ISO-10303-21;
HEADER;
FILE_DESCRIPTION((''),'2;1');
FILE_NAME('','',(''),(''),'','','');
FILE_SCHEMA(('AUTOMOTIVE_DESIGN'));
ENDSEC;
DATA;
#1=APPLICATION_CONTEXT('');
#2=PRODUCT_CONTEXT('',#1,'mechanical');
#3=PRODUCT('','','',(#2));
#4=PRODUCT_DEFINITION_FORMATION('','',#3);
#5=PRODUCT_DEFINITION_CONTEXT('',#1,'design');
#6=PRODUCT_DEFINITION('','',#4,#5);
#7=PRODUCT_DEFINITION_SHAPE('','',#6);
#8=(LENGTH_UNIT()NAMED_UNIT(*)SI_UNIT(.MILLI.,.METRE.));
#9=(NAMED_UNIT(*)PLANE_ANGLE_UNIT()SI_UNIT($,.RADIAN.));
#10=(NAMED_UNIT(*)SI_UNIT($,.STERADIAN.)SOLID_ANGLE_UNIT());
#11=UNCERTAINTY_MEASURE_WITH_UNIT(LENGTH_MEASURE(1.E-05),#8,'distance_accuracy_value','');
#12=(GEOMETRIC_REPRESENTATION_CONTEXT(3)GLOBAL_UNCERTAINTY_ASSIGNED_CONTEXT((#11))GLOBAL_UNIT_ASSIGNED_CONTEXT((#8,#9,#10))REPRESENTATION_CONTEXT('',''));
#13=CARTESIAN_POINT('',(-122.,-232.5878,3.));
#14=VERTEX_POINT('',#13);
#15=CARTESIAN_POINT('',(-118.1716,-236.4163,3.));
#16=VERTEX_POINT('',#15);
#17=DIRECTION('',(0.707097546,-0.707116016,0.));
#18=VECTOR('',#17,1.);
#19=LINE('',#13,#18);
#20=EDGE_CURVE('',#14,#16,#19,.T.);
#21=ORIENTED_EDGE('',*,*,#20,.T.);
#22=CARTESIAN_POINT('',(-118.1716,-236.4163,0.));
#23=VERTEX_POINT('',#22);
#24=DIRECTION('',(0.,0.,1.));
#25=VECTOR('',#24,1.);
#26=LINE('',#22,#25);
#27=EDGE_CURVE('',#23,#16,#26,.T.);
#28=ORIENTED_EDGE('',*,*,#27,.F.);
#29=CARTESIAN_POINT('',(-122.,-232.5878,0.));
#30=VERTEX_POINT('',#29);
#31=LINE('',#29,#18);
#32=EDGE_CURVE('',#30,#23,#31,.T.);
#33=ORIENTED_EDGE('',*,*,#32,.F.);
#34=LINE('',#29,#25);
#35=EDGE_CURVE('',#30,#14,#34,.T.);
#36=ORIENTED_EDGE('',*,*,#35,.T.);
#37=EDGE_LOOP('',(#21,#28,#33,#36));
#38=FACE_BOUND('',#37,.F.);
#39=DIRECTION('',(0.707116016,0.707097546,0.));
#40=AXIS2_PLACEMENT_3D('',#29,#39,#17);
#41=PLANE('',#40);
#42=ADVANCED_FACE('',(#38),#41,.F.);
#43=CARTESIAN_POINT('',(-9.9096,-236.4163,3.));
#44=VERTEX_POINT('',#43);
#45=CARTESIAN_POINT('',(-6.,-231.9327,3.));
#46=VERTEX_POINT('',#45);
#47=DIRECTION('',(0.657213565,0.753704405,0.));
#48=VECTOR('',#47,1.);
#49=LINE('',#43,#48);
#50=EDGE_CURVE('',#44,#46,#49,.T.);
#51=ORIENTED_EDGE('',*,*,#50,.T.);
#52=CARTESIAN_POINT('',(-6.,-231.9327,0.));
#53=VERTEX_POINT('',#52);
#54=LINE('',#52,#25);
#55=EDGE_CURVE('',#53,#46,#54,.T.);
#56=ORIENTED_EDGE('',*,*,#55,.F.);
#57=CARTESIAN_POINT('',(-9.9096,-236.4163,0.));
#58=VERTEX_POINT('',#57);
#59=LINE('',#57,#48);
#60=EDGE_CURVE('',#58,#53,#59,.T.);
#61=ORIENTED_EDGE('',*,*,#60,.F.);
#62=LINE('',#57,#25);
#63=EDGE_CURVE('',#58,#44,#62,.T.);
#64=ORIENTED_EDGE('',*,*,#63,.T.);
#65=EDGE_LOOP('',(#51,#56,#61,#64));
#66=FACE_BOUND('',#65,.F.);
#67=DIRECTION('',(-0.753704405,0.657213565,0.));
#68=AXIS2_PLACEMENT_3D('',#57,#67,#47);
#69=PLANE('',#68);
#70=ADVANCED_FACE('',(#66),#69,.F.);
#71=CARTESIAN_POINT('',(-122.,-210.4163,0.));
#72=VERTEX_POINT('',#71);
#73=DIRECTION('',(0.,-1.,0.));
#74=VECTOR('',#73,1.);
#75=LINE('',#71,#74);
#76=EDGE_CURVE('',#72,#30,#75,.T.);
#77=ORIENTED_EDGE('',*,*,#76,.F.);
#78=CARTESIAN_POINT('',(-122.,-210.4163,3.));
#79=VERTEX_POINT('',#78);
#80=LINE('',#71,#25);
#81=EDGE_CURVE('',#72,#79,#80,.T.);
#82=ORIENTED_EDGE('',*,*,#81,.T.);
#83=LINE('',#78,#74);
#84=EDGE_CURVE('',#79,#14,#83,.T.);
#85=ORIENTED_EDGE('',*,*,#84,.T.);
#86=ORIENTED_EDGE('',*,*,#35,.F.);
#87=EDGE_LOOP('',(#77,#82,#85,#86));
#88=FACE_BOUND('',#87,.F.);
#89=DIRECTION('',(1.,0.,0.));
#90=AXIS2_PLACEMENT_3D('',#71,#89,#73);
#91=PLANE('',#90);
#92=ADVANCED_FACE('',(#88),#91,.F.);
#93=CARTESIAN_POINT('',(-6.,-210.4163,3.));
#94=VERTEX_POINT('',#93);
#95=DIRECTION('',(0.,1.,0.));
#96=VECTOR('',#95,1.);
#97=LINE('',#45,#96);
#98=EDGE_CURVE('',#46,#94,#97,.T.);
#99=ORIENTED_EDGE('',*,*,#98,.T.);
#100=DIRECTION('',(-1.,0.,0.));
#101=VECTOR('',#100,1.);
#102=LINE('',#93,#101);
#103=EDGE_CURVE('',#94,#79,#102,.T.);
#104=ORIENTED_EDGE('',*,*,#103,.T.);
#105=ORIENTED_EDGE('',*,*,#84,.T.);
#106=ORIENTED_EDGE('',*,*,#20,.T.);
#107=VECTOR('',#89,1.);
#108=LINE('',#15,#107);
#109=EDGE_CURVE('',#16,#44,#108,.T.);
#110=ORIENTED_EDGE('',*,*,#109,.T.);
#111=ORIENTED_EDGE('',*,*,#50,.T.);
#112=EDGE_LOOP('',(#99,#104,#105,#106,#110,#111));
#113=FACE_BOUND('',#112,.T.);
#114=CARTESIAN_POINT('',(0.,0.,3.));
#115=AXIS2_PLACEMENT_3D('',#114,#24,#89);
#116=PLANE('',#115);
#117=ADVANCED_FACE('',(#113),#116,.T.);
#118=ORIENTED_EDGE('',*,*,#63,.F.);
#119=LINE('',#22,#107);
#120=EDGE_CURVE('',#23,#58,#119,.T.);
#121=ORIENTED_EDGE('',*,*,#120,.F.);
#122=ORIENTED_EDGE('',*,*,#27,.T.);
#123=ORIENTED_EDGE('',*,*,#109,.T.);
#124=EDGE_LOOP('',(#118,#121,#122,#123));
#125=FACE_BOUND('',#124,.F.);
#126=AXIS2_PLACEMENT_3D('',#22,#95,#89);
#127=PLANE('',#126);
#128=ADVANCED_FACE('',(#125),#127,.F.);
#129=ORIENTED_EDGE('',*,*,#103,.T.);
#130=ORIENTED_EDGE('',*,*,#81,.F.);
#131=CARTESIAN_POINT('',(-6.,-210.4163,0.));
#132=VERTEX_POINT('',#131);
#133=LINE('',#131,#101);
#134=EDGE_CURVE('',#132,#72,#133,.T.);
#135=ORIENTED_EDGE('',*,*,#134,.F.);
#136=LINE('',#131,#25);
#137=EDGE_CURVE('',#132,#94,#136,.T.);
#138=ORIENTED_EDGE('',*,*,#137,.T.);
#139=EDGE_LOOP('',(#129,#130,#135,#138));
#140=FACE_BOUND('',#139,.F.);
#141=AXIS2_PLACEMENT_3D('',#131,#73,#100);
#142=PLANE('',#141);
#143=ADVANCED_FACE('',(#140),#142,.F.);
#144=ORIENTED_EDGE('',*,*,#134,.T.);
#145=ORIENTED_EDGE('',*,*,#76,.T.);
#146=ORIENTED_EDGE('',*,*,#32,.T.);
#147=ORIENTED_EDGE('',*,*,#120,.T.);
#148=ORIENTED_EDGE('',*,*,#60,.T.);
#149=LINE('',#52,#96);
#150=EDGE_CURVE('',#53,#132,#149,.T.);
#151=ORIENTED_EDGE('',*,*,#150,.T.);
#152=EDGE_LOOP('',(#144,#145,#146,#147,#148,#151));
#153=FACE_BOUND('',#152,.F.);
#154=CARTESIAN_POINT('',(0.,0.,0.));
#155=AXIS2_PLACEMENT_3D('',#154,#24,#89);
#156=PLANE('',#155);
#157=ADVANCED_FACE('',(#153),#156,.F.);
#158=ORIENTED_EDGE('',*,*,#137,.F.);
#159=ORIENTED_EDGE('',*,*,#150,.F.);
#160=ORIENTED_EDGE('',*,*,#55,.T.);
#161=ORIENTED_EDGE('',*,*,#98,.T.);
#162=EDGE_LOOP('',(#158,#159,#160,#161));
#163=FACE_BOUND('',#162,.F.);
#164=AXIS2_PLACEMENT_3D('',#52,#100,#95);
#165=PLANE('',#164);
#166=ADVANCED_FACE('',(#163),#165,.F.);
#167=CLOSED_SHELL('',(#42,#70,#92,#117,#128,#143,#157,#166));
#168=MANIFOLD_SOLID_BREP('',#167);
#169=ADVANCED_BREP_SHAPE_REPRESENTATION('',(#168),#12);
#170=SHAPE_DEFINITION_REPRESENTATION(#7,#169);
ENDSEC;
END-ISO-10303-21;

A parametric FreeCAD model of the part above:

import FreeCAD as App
import Part
import Sketcher
Q = App.Units.Quantity


def add_polygon(sketch, points):
    """Adds a closed chain of lines whose ends are joined by coincident constraints."""
    first, n = sketch.GeometryCount, len(points)
    for a, b in zip(points, points[1:] + points[:1]):
        sketch.addGeometry(Part.LineSegment(App.Vector(*a, 0), App.Vector(*b, 0)), False)
    for i in range(n):
        sketch.addConstraint(Sketcher.Constraint("Coincident", first + i, 2, first + (i + 1) % n, 1))

doc = App.newDocument("Part")
body = doc.addObject("PartDesign::Body", "Body")

# Sketch on XY plane
sketch1 = body.newObject("Sketcher::SketchObject", "Sketch")
sketch1.AttachmentSupport = (doc.getObject("XY_Plane"), [""])
sketch1.MapMode = "FlatFace"
add_polygon(sketch1, [(-122, -233), (-118, -236), (-10, -236), (-6, -232), (-6, -210), (-122, -210)])  # lines 0-5
sketch1.addConstraint([
    Sketcher.Constraint("Horizontal", 1),
    Sketcher.Constraint("Vertical", 3),
    Sketcher.Constraint("Horizontal", 4),
    Sketcher.Constraint("Vertical", 5),
    Sketcher.Constraint("DistanceX", 4, 2, 4, 1, Q("116 mm")),
    Sketcher.Constraint("Angle", 0, Q("-45.0007 deg")),
    Sketcher.Constraint("DistanceX", 2, 2, -1, 1, Q("6 mm")),
    Sketcher.Constraint("DistanceY", 1, 2, 3, 2, Q("26 mm")),
    Sketcher.Constraint("DistanceX", 1, 1, 1, 2, Q("108.262 mm")),
    Sketcher.Constraint("DistanceY", 3, 1, 3, 2, Q("21.5164 mm")),
    Sketcher.Constraint("DistanceY", 5, 2, 5, 1, Q("22.1715 mm")),
    Sketcher.Constraint("DistanceY", 0, 2, -1, 1, Q("236.4163 mm")),
])
pad1 = body.newObject("PartDesign::Pad", "Pad")
pad1.Profile = sketch1
pad1.Length = 3

doc.recompute()
